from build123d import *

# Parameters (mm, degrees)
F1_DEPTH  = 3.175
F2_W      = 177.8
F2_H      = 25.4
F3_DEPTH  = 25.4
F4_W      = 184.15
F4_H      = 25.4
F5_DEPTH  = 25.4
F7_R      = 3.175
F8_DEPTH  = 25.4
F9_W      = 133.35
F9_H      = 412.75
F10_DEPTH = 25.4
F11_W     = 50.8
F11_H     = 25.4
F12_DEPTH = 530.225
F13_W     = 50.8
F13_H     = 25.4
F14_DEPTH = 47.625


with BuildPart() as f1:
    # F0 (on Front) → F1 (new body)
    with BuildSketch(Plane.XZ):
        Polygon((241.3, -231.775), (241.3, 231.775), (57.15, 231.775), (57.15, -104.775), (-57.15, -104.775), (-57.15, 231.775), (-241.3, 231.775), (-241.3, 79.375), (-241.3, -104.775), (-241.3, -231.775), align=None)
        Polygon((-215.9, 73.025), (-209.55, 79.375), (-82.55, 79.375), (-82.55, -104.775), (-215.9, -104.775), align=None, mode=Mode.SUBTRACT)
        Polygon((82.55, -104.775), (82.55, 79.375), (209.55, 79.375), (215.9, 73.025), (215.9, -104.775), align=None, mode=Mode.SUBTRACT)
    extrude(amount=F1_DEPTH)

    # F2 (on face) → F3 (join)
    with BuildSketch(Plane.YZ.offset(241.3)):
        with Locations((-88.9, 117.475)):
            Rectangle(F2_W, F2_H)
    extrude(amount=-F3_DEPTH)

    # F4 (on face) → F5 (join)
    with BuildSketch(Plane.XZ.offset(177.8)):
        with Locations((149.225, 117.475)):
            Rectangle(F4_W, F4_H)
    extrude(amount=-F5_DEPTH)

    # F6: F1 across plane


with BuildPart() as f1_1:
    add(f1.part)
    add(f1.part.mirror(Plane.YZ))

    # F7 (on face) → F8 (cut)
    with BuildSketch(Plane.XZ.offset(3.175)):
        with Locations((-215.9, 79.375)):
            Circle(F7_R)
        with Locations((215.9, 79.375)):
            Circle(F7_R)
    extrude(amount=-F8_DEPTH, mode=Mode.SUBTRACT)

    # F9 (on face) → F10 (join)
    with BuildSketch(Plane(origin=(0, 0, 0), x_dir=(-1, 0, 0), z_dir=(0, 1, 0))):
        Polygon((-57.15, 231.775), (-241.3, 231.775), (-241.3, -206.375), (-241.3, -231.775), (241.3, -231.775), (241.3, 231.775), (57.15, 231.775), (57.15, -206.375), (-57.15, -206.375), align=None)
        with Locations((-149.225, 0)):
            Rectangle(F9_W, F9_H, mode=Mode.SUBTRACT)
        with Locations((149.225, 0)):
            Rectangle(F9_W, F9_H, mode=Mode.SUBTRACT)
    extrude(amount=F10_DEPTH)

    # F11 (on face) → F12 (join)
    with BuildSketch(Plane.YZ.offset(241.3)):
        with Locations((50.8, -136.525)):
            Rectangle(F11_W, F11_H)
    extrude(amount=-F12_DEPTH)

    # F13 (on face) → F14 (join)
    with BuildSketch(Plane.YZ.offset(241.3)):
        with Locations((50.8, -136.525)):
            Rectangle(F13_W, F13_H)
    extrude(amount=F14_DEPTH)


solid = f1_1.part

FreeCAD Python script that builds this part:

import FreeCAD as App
import Part
import Sketcher
Q = App.Units.Quantity

doc = App.newDocument("Part")
body = doc.addObject("PartDesign::Body", "Body")

# Sketch on XZ plane
sketch1 = body.newObject("Sketcher::SketchObject", "Sketch")
sketch1.AttachmentSupport = (doc.getObject("XZ_Plane"), [""])
sketch1.MapMode = "FlatFace"
sketch1.addGeometry([
    Part.LineSegment(App.Vector(241, -232, 0), App.Vector(241, 232, 0)),  # 0
    Part.LineSegment(App.Vector(241, 232, 0), App.Vector(57, 232, 0)),  # 1
    Part.LineSegment(App.Vector(57, 232, 0), App.Vector(57, -105, 0)),  # 2
    Part.LineSegment(App.Vector(57, -105, 0), App.Vector(-57, -105, 0)),  # 3
    Part.LineSegment(App.Vector(-57, -105, 0), App.Vector(-57, 232, 0)),  # 4
    Part.LineSegment(App.Vector(-57, 232, 0), App.Vector(-241, 232, 0)),  # 5
    Part.LineSegment(App.Vector(-241, 232, 0), App.Vector(-241, -232, 0)),  # 6
    Part.LineSegment(App.Vector(-241, -232, 0), App.Vector(241, -232, 0)),  # 7
    Part.LineSegment(App.Vector(-216, -105, 0), App.Vector(-216, 73, 0)),  # 8
    Part.LineSegment(App.Vector(-216, 73, 0), App.Vector(-210, 79, 0)),  # 9
    Part.LineSegment(App.Vector(-210, 79, 0), App.Vector(-83, 79, 0)),  # 10
    Part.LineSegment(App.Vector(-83, 79, 0), App.Vector(-83, -105, 0)),  # 11
    Part.LineSegment(App.Vector(-83, -105, 0), App.Vector(-216, -105, 0)),  # 12
    Part.LineSegment(App.Vector(216, -105, 0), App.Vector(83, -105, 0)),  # 13
    Part.LineSegment(App.Vector(83, -105, 0), App.Vector(83, 79, 0)),  # 14
    Part.LineSegment(App.Vector(83, 79, 0), App.Vector(210, 79, 0)),  # 15
    Part.LineSegment(App.Vector(210, 79, 0), App.Vector(216, 73, 0)),  # 16
    Part.LineSegment(App.Vector(216, 73, 0), App.Vector(216, -105, 0)),  # 17
], False)
sketch1.addConstraint([
    Sketcher.Constraint("Coincident", 0, 2, 1, 1),
    Sketcher.Constraint("Coincident", 1, 2, 2, 1),
    Sketcher.Constraint("Coincident", 2, 2, 3, 1),
    Sketcher.Constraint("Coincident", 3, 2, 4, 1),
    Sketcher.Constraint("Coincident", 4, 2, 5, 1),
    Sketcher.Constraint("Coincident", 5, 2, 6, 1),
    Sketcher.Constraint("Coincident", 6, 2, 7, 1),
    Sketcher.Constraint("Coincident", 7, 2, 0, 1),
    Sketcher.Constraint("Coincident", 8, 2, 9, 1),
    Sketcher.Constraint("Coincident", 9, 2, 10, 1),
    Sketcher.Constraint("Coincident", 10, 2, 11, 1),
    Sketcher.Constraint("Coincident", 11, 2, 12, 1),
    Sketcher.Constraint("Coincident", 12, 2, 8, 1),
    Sketcher.Constraint("Coincident", 13, 2, 14, 1),
    Sketcher.Constraint("Coincident", 14, 2, 15, 1),
    Sketcher.Constraint("Coincident", 15, 2, 16, 1),
    Sketcher.Constraint("Coincident", 16, 2, 17, 1),
    Sketcher.Constraint("Coincident", 17, 2, 13, 1),
    Sketcher.Constraint("Vertical", 0),
    Sketcher.Constraint("Horizontal", 1),
    Sketcher.Constraint("Vertical", 2),
    Sketcher.Constraint("Horizontal", 3),
    Sketcher.Constraint("Vertical", 4),
    Sketcher.Constraint("Horizontal", 5),
    Sketcher.Constraint("Vertical", 6),
    Sketcher.Constraint("Horizontal", 7),
    Sketcher.Constraint("Vertical", 8),
    Sketcher.Constraint("Horizontal", 10),
    Sketcher.Constraint("Vertical", 11),
    Sketcher.Constraint("Horizontal", 12),
    Sketcher.Constraint("Horizontal", 13),
    Sketcher.Constraint("Vertical", 14),
    Sketcher.Constraint("Horizontal", 15),
    Sketcher.Constraint("Vertical", 17),
    Sketcher.Constraint("Symmetric", 0, 2, 6, 2, -1, 1),
    Sketcher.Constraint("Symmetric", 1, 2, 4, 2, -2),
    Sketcher.Constraint("Symmetric", 11, 2, 13, 2, -2),
    Sketcher.Constraint("Symmetric", 9, 2, 15, 2, -2),
    Sketcher.Constraint("Symmetric", 8, 2, 16, 2, -2),
    Sketcher.Constraint("Perpendicular", 9, 16),
    Sketcher.Constraint("Horizontal", 3, 2, 11, 2),
    Sketcher.Constraint("Equal", 5, 11),
    Sketcher.Constraint("DistanceX", 7, 1, 7, 2, Q("19 in")),
    Sketcher.Constraint("DistanceX", 10, 1, 10, 2, Q("5 in")),
    Sketcher.Constraint("DistanceY", 8, 1, 8, 2, Q("7 in")),
    Sketcher.Constraint("DistanceX", 3, 2, 3, 1, Q("4.5 in")),
    Sketcher.Constraint("DistanceY", 6, 2, 3, 2, Q("5 in")),
    Sketcher.Constraint("DistanceX", 5, 2, 8, 2, Q("1 in")),
    Sketcher.Constraint("DistanceY", 9, 2, 5, 2, Q("6 in")),
])
pad1 = body.newObject("PartDesign::Pad", "Pad")
pad1.Profile = sketch1
pad1.Length = Q("0.125 in")

# Sketch on YZ plane
sketch2 = body.newObject("Sketcher::SketchObject", "Sketch001")
sketch2.AttachmentSupport = (doc.getObject("YZ_Plane"), [""])
sketch2.MapMode = "FlatFace"
sketch2.AttachmentOffset = App.Placement(App.Vector(0, 0, 9.5 * 25.4), App.Rotation())
sketch2.addGeometry([
    Part.LineSegment(App.Vector(-178, 130, 0), App.Vector(-178, 105, 0)),
    Part.LineSegment(App.Vector(-178, 105, 0), App.Vector(0, 105, 0)),
    Part.LineSegment(App.Vector(0, 105, 0), App.Vector(0, 130, 0)),
    Part.LineSegment(App.Vector(0, 130, 0), App.Vector(-178, 130, 0)),
], False)
sketch2.addConstraint([
    Sketcher.Constraint("Coincident", 0, 2, 1, 1),
    Sketcher.Constraint("Coincident", 1, 2, 2, 1),
    Sketcher.Constraint("Coincident", 2, 2, 3, 1),
    Sketcher.Constraint("Coincident", 3, 2, 0, 1),
    Sketcher.Constraint("Vertical", 0),
    Sketcher.Constraint("Horizontal", 1),
    Sketcher.Constraint("Vertical", 2),
    Sketcher.Constraint("Horizontal", 3),
    Sketcher.Constraint("PointOnObject", 1, 2, -2),
    Sketcher.Constraint("DistanceX", 1, 1, 1, 2, Q("7 in")),
    Sketcher.Constraint("DistanceY", 0, 2, 0, 1, Q("1 in")),
    Sketcher.Constraint("DistanceY", -1, 1, 0, 2, Q("4.125 in")),
])
pad2 = body.newObject("PartDesign::Pad", "Pad001")
pad2.Profile = sketch2
pad2.Length = Q("1 in")
pad2.Reversed = True

# Sketch on XZ plane
sketch3 = body.newObject("Sketcher::SketchObject", "Sketch002")
sketch3.AttachmentSupport = (doc.getObject("XZ_Plane"), [""])
sketch3.MapMode = "FlatFace"
sketch3.AttachmentOffset = App.Placement(App.Vector(0, 0, 7 * 25.4), App.Rotation())
sketch3.addGeometry([
    Part.LineSegment(App.Vector(57, 130, 0), App.Vector(57, 105, 0)),
    Part.LineSegment(App.Vector(57, 105, 0), App.Vector(241, 105, 0)),
    Part.LineSegment(App.Vector(241, 105, 0), App.Vector(241, 130, 0)),
    Part.LineSegment(App.Vector(241, 130, 0), App.Vector(57, 130, 0)),
], False)
sketch3.addConstraint([
    Sketcher.Constraint("Coincident", 0, 2, 1, 1),
    Sketcher.Constraint("Coincident", 1, 2, 2, 1),
    Sketcher.Constraint("Coincident", 2, 2, 3, 1),
    Sketcher.Constraint("Coincident", 3, 2, 0, 1),
    Sketcher.Constraint("Vertical", 0),
    Sketcher.Constraint("Horizontal", 1),
    Sketcher.Constraint("Vertical", 2),
    Sketcher.Constraint("Horizontal", 3),
    Sketcher.Constraint("DistanceY", 0, 2, 0, 1, Q("1 in")),
    Sketcher.Constraint("DistanceX", 1, 1, 1, 2, Q("7.25 in")),
    Sketcher.Constraint("DistanceX", -1, 1, 1, 2, Q("9.5 in")),
    Sketcher.Constraint("DistanceY", -1, 1, 0, 2, Q("4.125 in")),
])
pad3 = body.newObject("PartDesign::Pad", "Pad002")
pad3.Profile = sketch3
pad3.Length = Q("1 in")
pad3.Reversed = True
body2 = doc.addObject("PartDesign::Body", "Body001")
doc.recompute()

body2.BaseFeature = body
doc.recompute()

mirroring = doc.addObject("Part::Mirroring", "Mirroring")
mirroring.Source = body
mirroring.Base = App.Vector(0, 0, 0)
mirroring.Normal = App.Vector(1, 0, 0)
body3 = doc.addObject("PartDesign::Body", "Body002")
body3.BaseFeature = mirroring
boolean = body2.newObject("PartDesign::Boolean", "Boolean")
boolean.Type = "Fuse"
boolean.addObjects([body3])
doc.recompute()

# Sketch on XZ plane
sketch4 = body2.newObject("Sketcher::SketchObject", "Sketch003")
sketch4.AttachmentSupport = (doc.getObject("XZ_Plane001"), [""])
sketch4.MapMode = "FlatFace"
sketch4.AttachmentOffset = App.Placement(App.Vector(0, 0, 0.125 * 25.4), App.Rotation())
sketch4.addGeometry([
    Part.Circle(App.Vector(-215.9, 79.4, 0), App.Vector(0, 0, 1), 3.2),
    Part.Circle(App.Vector(215.9, 79.4, 0), App.Vector(0, 0, 1), 3.2),
], False)
sketch4.addConstraint([
    Sketcher.Constraint("Equal", 0, 1),
    Sketcher.Constraint("Symmetric", 0, 3, 1, 3, -2),
    Sketcher.Constraint("Diameter", 0, Q("0.25 in")),
    Sketcher.Constraint("DistanceX", 0, 3, 1, 3, Q("17 in")),
    Sketcher.Constraint("DistanceY", -1, 1, 0, 3, Q("3.125 in")),
])
pocket1 = body2.newObject("PartDesign::Pocket", "Pocket")
pocket1.Profile = sketch4
pocket1.Length = Q("1 in")

# Sketch on XZ plane
sketch5 = body2.newObject("Sketcher::SketchObject", "Sketch004")
sketch5.AttachmentSupport = (doc.getObject("XZ_Plane001"), [""])
sketch5.MapMode = "FlatFace"
sketch5.addGeometry([
    Part.LineSegment(App.Vector(57, 232, 0), App.Vector(241, 232, 0)),  # 0
    Part.LineSegment(App.Vector(241, 232, 0), App.Vector(241, -232, 0)),  # 1
    Part.LineSegment(App.Vector(241, -232, 0), App.Vector(-241, -232, 0)),  # 2
    Part.LineSegment(App.Vector(-241, -232, 0), App.Vector(-241, 232, 0)),  # 3
    Part.LineSegment(App.Vector(-241, 232, 0), App.Vector(-57, 232, 0)),  # 4
    Part.LineSegment(App.Vector(-57, 232, 0), App.Vector(-57, -206, 0)),  # 5
    Part.LineSegment(App.Vector(-57, -206, 0), App.Vector(57, -206, 0)),  # 6
    Part.LineSegment(App.Vector(57, -206, 0), App.Vector(57, 232, 0)),  # 7
    Part.LineSegment(App.Vector(83, -206, 0), App.Vector(216, -206, 0)),  # 8
    Part.LineSegment(App.Vector(216, -206, 0), App.Vector(216, 206, 0)),  # 9
    Part.LineSegment(App.Vector(216, 206, 0), App.Vector(83, 206, 0)),  # 10
    Part.LineSegment(App.Vector(83, 206, 0), App.Vector(83, -206, 0)),  # 11
    Part.LineSegment(App.Vector(-216, -206, 0), App.Vector(-83, -206, 0)),  # 12
    Part.LineSegment(App.Vector(-83, -206, 0), App.Vector(-83, 206, 0)),  # 13
    Part.LineSegment(App.Vector(-83, 206, 0), App.Vector(-216, 206, 0)),  # 14
    Part.LineSegment(App.Vector(-216, 206, 0), App.Vector(-216, -206, 0)),  # 15
], False)
sketch5.addConstraint([
    Sketcher.Constraint("Coincident", 0, 2, 1, 1),
    Sketcher.Constraint("Coincident", 1, 2, 2, 1),
    Sketcher.Constraint("Coincident", 2, 2, 3, 1),
    Sketcher.Constraint("Coincident", 3, 2, 4, 1),
    Sketcher.Constraint("Coincident", 4, 2, 5, 1),
    Sketcher.Constraint("Coincident", 5, 2, 6, 1),
    Sketcher.Constraint("Coincident", 6, 2, 7, 1),
    Sketcher.Constraint("Coincident", 7, 2, 0, 1),
    Sketcher.Constraint("Coincident", 8, 2, 9, 1),
    Sketcher.Constraint("Coincident", 9, 2, 10, 1),
    Sketcher.Constraint("Coincident", 10, 2, 11, 1),
    Sketcher.Constraint("Coincident", 11, 2, 8, 1),
    Sketcher.Constraint("Coincident", 12, 2, 13, 1),
    Sketcher.Constraint("Coincident", 13, 2, 14, 1),
    Sketcher.Constraint("Coincident", 14, 2, 15, 1),
    Sketcher.Constraint("Coincident", 15, 2, 12, 1),
    Sketcher.Constraint("Horizontal", 0),
    Sketcher.Constraint("Vertical", 1),
    Sketcher.Constraint("Horizontal", 2),
    Sketcher.Constraint("Vertical", 3),
    Sketcher.Constraint("Horizontal", 4),
    Sketcher.Constraint("Vertical", 5),
    Sketcher.Constraint("Horizontal", 6),
    Sketcher.Constraint("Vertical", 7),
    Sketcher.Constraint("Horizontal", 8),
    Sketcher.Constraint("Vertical", 9),
    Sketcher.Constraint("Horizontal", 10),
    Sketcher.Constraint("Vertical", 11),
    Sketcher.Constraint("Horizontal", 12),
    Sketcher.Constraint("Vertical", 13),
    Sketcher.Constraint("Horizontal", 14),
    Sketcher.Constraint("Vertical", 15),
    Sketcher.Constraint("Symmetric", 0, 2, 2, 2, -1, 1),
    Sketcher.Constraint("Symmetric", 10, 2, 12, 2, -1, 1),
    Sketcher.Constraint("Symmetric", 8, 2, 14, 2, -1, 1),
    Sketcher.Constraint("Symmetric", 4, 2, 7, 2, -2),
    Sketcher.Constraint("Horizontal", 6, 2, 8, 2),
    Sketcher.Constraint("Horizontal", 11, 2, 12, 2),
    Sketcher.Constraint("DistanceX", 2, 2, 2, 1, Q("19 in")),
    Sketcher.Constraint("DistanceX", 6, 1, 6, 2, Q("4.5 in")),
    Sketcher.Constraint("DistanceY", 2, 2, 5, 2, Q("1 in")),
    Sketcher.Constraint("DistanceX", 8, 2, 1, 2, Q("1 in")),
    Sketcher.Constraint("DistanceX", 7, 2, 10, 2, Q("1 in")),
    Sketcher.Constraint("DistanceY", 1, 2, 1, 1, Q("18.25 in")),
])
pad4 = body2.newObject("PartDesign::Pad", "Pad003")
pad4.Profile = sketch5
pad4.Length = Q("1 in")
pad4.Reversed = True

# Sketch on YZ plane
sketch6 = body2.newObject("Sketcher::SketchObject", "Sketch005")
sketch6.AttachmentSupport = (doc.getObject("YZ_Plane001"), [""])
sketch6.MapMode = "FlatFace"
sketch6.AttachmentOffset = App.Placement(App.Vector(0, 0, 9.5 * 25.4), App.Rotation())
sketch6.addGeometry([
    Part.LineSegment(App.Vector(25, -124, 0), App.Vector(25, -149, 0)),
    Part.LineSegment(App.Vector(25, -149, 0), App.Vector(76, -149, 0)),
    Part.LineSegment(App.Vector(76, -149, 0), App.Vector(76, -124, 0)),
    Part.LineSegment(App.Vector(76, -124, 0), App.Vector(25, -124, 0)),
], False)
sketch6.addConstraint([
    Sketcher.Constraint("Coincident", 0, 2, 1, 1),
    Sketcher.Constraint("Coincident", 1, 2, 2, 1),
    Sketcher.Constraint("Coincident", 2, 2, 3, 1),
    Sketcher.Constraint("Coincident", 3, 2, 0, 1),
    Sketcher.Constraint("Vertical", 0),
    Sketcher.Constraint("Horizontal", 1),
    Sketcher.Constraint("Vertical", 2),
    Sketcher.Constraint("Horizontal", 3),
    Sketcher.Constraint("DistanceX", 1, 1, 1, 2, Q("2 in")),
    Sketcher.Constraint("DistanceY", 0, 2, 0, 1, Q("1 in")),
    Sketcher.Constraint("DistanceX", -1, 1, 0, 2, Q("1 in")),
    Sketcher.Constraint("DistanceY", 0, 2, -1, 1, Q("5.875 in")),
])
pad5 = body2.newObject("PartDesign::Pad", "Pad004")
pad5.Profile = sketch6
pad5.Length = Q("20.875 in")
pad5.Reversed = True

# Sketch on YZ plane
sketch7 = body2.newObject("Sketcher::SketchObject", "Sketch006")
sketch7.AttachmentSupport = (doc.getObject("YZ_Plane001"), [""])
sketch7.MapMode = "FlatFace"
sketch7.AttachmentOffset = App.Placement(App.Vector(0, 0, 9.5 * 25.4), App.Rotation())
sketch7.addGeometry([
    Part.LineSegment(App.Vector(25, -124, 0), App.Vector(25, -149, 0)),
    Part.LineSegment(App.Vector(25, -149, 0), App.Vector(76, -149, 0)),
    Part.LineSegment(App.Vector(76, -149, 0), App.Vector(76, -124, 0)),
    Part.LineSegment(App.Vector(76, -124, 0), App.Vector(25, -124, 0)),
], False)
sketch7.addConstraint([
    Sketcher.Constraint("Coincident", 0, 2, 1, 1),
    Sketcher.Constraint("Coincident", 1, 2, 2, 1),
    Sketcher.Constraint("Coincident", 2, 2, 3, 1),
    Sketcher.Constraint("Coincident", 3, 2, 0, 1),
    Sketcher.Constraint("Vertical", 0),
    Sketcher.Constraint("Horizontal", 1),
    Sketcher.Constraint("Vertical", 2),
    Sketcher.Constraint("Horizontal", 3),
    Sketcher.Constraint("DistanceX", 1, 1, 1, 2, Q("2 in")),
    Sketcher.Constraint("DistanceY", 0, 2, 0, 1, Q("1 in")),
    Sketcher.Constraint("DistanceX", -1, 1, 0, 2, Q("1 in")),
    Sketcher.Constraint("DistanceY", 0, 2, -1, 1, Q("5.875 in")),
])
pad6 = body2.newObject("PartDesign::Pad", "Pad005")
pad6.Profile = sketch7
pad6.Length = Q("1.875 in")
mirroring.Visibility = False

doc.recompute()
